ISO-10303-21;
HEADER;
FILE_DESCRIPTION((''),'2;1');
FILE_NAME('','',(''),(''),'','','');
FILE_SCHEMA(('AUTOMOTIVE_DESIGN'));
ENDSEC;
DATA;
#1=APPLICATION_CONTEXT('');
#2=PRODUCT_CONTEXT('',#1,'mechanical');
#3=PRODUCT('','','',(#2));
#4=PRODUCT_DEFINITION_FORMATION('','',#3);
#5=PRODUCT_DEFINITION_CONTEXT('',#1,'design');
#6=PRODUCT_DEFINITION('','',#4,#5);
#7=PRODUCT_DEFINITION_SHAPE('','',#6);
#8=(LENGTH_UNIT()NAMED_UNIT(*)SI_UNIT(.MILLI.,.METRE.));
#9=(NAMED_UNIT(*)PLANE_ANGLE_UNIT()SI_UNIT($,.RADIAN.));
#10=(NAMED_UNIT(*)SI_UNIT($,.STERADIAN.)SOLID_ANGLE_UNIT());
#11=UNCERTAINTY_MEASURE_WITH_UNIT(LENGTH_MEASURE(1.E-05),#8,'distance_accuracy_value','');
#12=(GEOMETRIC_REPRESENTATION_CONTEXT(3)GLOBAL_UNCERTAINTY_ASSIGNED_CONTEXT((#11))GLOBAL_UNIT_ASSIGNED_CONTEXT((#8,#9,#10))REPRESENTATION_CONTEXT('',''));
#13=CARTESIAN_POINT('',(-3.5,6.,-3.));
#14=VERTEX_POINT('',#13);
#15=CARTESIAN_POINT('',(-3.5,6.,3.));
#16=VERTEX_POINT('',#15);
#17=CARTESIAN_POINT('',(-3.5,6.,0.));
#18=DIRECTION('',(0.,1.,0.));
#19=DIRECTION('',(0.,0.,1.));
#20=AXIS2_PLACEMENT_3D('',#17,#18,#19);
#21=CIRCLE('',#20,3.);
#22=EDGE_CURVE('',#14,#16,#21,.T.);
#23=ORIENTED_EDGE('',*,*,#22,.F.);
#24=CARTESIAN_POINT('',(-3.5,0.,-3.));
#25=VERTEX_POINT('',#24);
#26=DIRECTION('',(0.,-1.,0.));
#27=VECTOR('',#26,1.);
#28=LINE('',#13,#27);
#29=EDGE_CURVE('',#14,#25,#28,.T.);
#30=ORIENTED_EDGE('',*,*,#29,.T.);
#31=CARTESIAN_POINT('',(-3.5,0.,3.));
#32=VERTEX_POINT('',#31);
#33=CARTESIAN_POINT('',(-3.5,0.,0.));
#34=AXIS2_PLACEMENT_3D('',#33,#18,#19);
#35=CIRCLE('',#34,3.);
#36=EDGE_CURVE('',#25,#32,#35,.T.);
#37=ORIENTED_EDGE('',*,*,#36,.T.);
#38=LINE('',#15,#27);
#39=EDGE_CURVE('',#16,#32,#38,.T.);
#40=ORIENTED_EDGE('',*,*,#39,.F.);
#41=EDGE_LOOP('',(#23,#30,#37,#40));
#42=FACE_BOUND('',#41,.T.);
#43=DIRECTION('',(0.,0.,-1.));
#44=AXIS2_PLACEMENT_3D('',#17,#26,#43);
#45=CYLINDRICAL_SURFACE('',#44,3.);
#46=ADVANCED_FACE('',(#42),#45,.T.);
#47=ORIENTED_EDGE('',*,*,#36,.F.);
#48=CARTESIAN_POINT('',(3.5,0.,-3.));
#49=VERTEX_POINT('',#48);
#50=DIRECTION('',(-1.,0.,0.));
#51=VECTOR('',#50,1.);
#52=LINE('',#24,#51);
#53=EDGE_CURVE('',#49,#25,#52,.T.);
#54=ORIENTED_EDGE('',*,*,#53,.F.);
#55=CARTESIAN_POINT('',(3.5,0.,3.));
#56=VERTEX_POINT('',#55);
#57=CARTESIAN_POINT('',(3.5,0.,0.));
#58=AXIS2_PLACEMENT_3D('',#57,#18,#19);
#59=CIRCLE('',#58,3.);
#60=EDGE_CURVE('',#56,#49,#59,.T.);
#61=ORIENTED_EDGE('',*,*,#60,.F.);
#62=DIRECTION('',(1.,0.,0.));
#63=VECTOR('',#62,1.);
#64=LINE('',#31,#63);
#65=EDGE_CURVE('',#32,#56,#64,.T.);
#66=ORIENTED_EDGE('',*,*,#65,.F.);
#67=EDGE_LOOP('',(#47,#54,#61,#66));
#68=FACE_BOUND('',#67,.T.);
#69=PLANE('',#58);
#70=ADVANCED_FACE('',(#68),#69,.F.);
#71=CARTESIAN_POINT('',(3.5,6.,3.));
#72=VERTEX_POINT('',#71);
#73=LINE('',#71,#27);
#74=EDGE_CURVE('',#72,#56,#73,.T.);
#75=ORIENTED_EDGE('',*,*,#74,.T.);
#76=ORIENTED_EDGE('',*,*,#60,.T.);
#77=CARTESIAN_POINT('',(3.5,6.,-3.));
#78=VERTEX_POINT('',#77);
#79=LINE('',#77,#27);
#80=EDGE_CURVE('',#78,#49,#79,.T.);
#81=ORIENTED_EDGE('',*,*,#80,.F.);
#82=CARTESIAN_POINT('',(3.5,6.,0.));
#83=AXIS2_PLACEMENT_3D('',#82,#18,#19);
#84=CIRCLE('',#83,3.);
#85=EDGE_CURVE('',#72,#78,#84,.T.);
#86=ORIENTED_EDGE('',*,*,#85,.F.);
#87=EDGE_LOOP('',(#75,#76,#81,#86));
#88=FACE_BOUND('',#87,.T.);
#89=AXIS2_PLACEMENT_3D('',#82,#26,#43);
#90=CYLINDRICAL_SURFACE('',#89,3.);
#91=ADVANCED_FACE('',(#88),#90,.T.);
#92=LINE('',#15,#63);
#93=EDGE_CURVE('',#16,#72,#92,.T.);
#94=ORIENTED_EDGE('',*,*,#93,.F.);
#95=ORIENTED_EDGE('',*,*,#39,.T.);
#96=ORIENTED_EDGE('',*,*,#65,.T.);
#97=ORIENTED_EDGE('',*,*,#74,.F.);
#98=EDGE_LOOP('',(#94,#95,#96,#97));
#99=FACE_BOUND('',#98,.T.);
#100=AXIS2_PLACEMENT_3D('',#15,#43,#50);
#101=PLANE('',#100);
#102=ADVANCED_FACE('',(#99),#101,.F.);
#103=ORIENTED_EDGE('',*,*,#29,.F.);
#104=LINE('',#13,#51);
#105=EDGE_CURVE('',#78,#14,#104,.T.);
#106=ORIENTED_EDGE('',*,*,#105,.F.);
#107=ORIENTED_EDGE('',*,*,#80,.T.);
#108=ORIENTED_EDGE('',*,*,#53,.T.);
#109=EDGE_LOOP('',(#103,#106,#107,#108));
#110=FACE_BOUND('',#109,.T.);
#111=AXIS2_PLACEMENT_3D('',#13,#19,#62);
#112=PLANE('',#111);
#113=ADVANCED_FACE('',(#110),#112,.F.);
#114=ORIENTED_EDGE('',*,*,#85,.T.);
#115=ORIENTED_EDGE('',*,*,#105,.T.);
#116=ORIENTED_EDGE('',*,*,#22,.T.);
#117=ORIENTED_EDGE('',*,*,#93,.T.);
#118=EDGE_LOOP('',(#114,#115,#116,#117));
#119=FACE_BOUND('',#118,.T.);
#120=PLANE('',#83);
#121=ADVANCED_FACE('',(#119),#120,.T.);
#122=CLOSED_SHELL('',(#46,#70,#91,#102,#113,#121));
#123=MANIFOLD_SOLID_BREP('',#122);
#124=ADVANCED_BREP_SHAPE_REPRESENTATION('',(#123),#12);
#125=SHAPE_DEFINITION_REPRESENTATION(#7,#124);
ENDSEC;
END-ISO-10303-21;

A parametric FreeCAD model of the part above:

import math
import FreeCAD as App
import Part
import Sketcher

V = App.Vector
Q = App.Units.Quantity

doc = App.newDocument("Part")
body = doc.addObject("PartDesign::Body", "Body")

sketch1 = body.newObject("Sketcher::SketchObject", "Sketch")
sketch1.AttachmentSupport = (doc.getObject("XZ_Plane"), [""])
sketch1.MapMode = "FlatFace"
sketch1.addGeometry([
    Part.LineSegment(V(-3.5, 3, 0), V(3.5, 3, 0)),
    Part.ArcOfCircle(Part.Circle(V(3.5, 0, 0), V(0, 0, 1), 3), math.radians(-90), math.radians(90)),
    Part.LineSegment(V(3.5, -3, 0), V(-3.5, -3, 0)),
    Part.ArcOfCircle(Part.Circle(V(-3.5, 0, 0), V(0, 0, 1), 3), math.radians(90), math.radians(270)),
], False)
sketch1.addConstraint([
    Sketcher.Constraint("Tangent", 0, 2, 1, 2),
    Sketcher.Constraint("Tangent", 1, 1, 2, 1),
    Sketcher.Constraint("Tangent", 2, 2, 3, 2),
    Sketcher.Constraint("Tangent", 3, 1, 0, 1),
    Sketcher.Constraint("Horizontal", 0),
    Sketcher.Constraint("Horizontal", 2),
    Sketcher.Constraint("Symmetric", 1, 3, 3, 3, -1, 1),
    Sketcher.Constraint("Radius", 1, Q("3 mm")),
    Sketcher.Constraint("DistanceX", 0, 1, 0, 2, Q("7 mm")),
])
pad1 = body.newObject("PartDesign::Pad", "Pad")
pad1.Profile = sketch1
pad1.Length = 6
pad1.Reversed = True

doc.recompute()
